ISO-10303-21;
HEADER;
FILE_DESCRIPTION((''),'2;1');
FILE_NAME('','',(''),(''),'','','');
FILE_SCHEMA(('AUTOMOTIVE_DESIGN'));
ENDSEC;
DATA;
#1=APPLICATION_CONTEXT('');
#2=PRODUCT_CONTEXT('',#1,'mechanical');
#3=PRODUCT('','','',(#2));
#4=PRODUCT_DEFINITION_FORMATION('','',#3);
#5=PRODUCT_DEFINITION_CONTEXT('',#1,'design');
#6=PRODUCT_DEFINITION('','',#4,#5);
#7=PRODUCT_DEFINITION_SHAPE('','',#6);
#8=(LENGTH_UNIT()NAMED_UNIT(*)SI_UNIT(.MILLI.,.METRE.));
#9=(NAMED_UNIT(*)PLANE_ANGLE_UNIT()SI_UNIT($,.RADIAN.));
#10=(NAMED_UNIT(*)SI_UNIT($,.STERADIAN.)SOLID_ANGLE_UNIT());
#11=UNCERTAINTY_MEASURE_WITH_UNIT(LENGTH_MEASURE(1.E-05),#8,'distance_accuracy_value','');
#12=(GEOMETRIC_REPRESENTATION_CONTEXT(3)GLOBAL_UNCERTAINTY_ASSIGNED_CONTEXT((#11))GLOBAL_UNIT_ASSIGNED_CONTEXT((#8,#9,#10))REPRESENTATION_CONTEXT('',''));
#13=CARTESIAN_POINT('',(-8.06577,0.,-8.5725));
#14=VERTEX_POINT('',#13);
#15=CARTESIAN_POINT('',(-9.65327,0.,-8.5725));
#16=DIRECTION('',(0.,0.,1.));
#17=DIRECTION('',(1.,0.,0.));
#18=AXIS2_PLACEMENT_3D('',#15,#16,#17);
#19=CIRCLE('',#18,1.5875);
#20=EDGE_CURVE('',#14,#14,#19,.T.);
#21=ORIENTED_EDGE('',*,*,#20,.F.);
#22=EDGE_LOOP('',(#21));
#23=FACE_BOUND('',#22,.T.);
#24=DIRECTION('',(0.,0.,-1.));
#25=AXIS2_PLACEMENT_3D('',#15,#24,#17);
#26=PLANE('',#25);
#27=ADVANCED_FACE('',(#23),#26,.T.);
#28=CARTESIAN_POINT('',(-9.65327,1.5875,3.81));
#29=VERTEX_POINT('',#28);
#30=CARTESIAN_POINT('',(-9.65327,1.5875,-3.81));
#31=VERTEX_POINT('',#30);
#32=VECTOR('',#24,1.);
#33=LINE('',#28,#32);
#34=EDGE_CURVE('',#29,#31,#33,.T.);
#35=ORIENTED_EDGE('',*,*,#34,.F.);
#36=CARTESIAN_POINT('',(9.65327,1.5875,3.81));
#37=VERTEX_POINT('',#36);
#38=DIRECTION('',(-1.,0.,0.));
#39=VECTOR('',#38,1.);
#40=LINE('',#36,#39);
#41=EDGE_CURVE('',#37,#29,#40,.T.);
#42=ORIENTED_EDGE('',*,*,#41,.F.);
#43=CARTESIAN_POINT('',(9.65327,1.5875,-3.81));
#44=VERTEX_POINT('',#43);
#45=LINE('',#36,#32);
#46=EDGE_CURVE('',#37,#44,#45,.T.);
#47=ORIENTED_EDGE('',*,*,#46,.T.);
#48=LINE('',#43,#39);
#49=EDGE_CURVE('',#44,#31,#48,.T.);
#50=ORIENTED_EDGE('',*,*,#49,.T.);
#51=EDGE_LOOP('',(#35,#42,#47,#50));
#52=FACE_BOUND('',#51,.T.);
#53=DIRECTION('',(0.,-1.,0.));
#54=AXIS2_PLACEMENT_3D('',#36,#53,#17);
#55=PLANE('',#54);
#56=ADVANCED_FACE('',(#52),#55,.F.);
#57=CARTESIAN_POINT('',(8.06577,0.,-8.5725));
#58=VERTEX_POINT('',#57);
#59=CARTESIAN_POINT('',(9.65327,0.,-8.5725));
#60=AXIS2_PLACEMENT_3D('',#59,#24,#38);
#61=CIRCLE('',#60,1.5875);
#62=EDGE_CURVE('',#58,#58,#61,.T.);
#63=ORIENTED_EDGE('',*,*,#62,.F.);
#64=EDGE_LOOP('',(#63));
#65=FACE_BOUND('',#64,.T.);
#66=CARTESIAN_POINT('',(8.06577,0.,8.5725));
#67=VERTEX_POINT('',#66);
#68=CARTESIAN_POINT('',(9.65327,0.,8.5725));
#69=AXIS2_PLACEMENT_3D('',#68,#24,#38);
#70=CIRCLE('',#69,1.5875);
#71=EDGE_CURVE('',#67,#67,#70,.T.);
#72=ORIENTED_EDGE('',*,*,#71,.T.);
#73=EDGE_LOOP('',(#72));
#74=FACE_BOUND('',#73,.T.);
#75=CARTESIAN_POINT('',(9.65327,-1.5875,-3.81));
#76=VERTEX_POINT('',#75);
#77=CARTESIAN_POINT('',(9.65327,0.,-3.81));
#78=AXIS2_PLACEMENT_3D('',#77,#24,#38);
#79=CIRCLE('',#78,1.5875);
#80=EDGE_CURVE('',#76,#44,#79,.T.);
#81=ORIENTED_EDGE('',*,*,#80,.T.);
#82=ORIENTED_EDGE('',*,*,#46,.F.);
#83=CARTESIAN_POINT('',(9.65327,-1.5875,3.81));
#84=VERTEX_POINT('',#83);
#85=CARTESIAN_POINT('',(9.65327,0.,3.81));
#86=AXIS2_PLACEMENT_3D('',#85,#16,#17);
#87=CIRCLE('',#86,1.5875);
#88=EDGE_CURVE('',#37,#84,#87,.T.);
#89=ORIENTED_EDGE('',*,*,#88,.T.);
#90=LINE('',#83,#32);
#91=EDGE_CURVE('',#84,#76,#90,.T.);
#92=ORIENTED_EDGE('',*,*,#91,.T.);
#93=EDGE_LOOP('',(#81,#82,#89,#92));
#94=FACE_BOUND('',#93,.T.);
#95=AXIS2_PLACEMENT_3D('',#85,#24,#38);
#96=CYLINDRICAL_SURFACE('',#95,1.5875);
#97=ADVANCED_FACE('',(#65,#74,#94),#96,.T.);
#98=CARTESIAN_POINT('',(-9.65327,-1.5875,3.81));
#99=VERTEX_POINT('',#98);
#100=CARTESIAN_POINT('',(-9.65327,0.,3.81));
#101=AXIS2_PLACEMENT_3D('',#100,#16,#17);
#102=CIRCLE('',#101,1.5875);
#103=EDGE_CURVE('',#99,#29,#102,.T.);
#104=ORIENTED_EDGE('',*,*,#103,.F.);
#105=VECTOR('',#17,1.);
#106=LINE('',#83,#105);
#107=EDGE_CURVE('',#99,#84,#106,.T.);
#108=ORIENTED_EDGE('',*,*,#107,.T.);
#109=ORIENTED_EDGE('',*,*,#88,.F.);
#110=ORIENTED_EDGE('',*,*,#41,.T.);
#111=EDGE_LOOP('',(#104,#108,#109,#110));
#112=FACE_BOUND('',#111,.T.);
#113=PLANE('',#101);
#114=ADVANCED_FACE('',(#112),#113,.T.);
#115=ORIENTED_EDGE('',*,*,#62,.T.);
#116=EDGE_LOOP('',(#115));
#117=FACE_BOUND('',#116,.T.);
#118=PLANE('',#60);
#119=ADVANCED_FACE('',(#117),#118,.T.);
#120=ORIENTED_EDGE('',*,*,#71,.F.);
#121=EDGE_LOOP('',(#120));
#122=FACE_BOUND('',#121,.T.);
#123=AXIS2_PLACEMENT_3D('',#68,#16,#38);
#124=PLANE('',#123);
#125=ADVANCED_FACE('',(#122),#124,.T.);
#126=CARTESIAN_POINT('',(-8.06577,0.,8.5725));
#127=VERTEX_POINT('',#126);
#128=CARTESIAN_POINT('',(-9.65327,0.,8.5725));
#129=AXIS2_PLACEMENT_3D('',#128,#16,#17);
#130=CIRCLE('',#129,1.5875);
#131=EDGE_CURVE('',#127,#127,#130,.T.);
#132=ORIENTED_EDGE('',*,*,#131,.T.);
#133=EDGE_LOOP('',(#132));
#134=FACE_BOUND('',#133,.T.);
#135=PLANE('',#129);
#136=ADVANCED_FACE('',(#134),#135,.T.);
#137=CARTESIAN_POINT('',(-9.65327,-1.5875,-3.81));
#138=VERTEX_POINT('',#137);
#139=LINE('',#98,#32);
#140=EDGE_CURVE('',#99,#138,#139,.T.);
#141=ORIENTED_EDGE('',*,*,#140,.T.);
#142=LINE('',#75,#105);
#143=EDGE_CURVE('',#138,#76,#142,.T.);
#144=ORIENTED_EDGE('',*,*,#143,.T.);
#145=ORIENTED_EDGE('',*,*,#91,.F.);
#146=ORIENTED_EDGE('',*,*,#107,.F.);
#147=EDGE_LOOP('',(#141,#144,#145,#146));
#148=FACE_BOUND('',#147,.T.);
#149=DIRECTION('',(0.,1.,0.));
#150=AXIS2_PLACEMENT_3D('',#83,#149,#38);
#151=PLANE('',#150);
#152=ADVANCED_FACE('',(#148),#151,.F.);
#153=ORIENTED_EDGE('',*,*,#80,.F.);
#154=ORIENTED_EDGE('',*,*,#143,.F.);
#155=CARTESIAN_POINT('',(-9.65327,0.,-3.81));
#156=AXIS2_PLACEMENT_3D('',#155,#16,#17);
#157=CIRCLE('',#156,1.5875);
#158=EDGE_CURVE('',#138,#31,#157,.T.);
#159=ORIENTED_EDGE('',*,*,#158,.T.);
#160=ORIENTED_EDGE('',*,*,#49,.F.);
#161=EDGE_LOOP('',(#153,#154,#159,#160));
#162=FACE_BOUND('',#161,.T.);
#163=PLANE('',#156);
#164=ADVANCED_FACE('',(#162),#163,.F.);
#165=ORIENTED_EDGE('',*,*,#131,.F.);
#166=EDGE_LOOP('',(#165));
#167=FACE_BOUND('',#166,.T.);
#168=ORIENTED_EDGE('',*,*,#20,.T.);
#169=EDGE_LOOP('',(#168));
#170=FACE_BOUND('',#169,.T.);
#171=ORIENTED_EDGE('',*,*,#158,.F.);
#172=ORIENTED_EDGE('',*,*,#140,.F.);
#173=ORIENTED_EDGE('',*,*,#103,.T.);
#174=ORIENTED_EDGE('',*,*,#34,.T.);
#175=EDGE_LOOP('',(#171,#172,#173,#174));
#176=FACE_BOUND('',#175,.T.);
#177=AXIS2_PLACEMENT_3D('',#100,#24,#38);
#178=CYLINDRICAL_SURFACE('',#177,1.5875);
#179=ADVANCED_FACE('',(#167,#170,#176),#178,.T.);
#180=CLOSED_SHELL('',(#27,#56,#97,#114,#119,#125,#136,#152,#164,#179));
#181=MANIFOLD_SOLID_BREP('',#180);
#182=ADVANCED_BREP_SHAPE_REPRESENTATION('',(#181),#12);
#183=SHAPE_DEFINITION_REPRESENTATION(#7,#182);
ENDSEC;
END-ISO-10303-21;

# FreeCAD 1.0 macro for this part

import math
import FreeCAD as App
import Part
import Sketcher
Q = App.Units.Quantity

doc = App.newDocument("Part")
body = doc.addObject("PartDesign::Body", "Body")

sketch1 = body.newObject("Sketcher::SketchObject", "Sketch")
sketch1.AttachmentSupport = (doc.getObject("XY_Plane"), [""])
sketch1.MapMode = "FlatFace"
sketch1.addGeometry([
    Part.LineSegment(App.Vector(9.65327, 1.5875, 0), App.Vector(-9.65327, 1.5875, 0)),
    Part.ArcOfCircle(Part.Circle(App.Vector(-9.65327, 0, 0), App.Vector(0, 0, 1), 1.5875), math.radians(90), math.radians(270)),
    Part.LineSegment(App.Vector(-9.65327, -1.5875, 0), App.Vector(9.65327, -1.5875, 0)),
    Part.ArcOfCircle(Part.Circle(App.Vector(9.65327, 0, 0), App.Vector(0, 0, 1), 1.5875), math.radians(-90), math.radians(90)),
], False)
sketch1.addConstraint([
    Sketcher.Constraint("Tangent", 0, 2, 1, 1),
    Sketcher.Constraint("Tangent", 1, 2, 2, 1),
    Sketcher.Constraint("Tangent", 2, 2, 3, 1),
    Sketcher.Constraint("Tangent", 3, 2, 0, 1),
    Sketcher.Constraint("Horizontal", 0),
    Sketcher.Constraint("Horizontal", 2),
    Sketcher.Constraint("Symmetric", 1, 3, 3, 3, -1, 1),
    Sketcher.Constraint("Radius", 1, Q("0.0625 in")),
    Sketcher.Constraint("DistanceX", 0, 2, 0, 1, Q("0.7601 in")),
])
pad1 = body.newObject("PartDesign::Pad", "Pad")
pad1.Profile = sketch1
pad1.Length = Q("0.3 in")
pad1.Midplane = True

sketch2 = body.newObject("Sketcher::SketchObject", "Sketch001")
sketch2.AttachmentSupport = (doc.getObject("XY_Plane"), [""])
sketch2.MapMode = "FlatFace"
sketch2.AttachmentOffset = App.Placement(App.Vector(0, 0, 0.15 * 25.4), App.Rotation())
sketch2.addGeometry(Part.Circle(App.Vector(-9.65327, 0, 0), App.Vector(0, 0, 1), 1.5875), False)
sketch2.addConstraint([
    Sketcher.Constraint("PointOnObject", 0, 3, -1),
    Sketcher.Constraint("Diameter", 0, Q("0.125 in")),
    Sketcher.Constraint("DistanceX", 0, 3, -1, 1, 9.65327),
])
pad2 = body.newObject("PartDesign::Pad", "Pad001")
pad2.Profile = sketch2
pad2.Length = Q("0.1875 in")
doc.recompute()

mirrored = body.newObject("PartDesign::Mirrored", "Mirrored")
mirrored.Originals = [pad2]
mirrored.MirrorPlane = (doc.getObject("YZ_Plane"), [""])
body.Tip = mirrored
doc.recompute()

mirrored2 = body.newObject("PartDesign::Mirrored", "Mirrored001")
mirrored2.Originals = [pad2]
mirrored2.MirrorPlane = (doc.getObject("XY_Plane"), [""])
body.Tip = mirrored2

sketch3 = body.newObject("Sketcher::SketchObject", "Sketch002")
sketch3.AttachmentSupport = (doc.getObject("XY_Plane"), [""])
sketch3.MapMode = "FlatFace"
sketch3.AttachmentOffset = App.Placement(App.Vector(0, 0, -0.15 * 25.4), App.Rotation())
sketch3.addGeometry(Part.Circle(App.Vector(9.65327, 0, 0), App.Vector(0, 0, 1), 1.5875), False)
sketch3.addConstraint([
    Sketcher.Constraint("PointOnObject", 0, 3, -1),
    Sketcher.Constraint("Diameter", 0, Q("0.125 in")),
    Sketcher.Constraint("DistanceX", -1, 1, 0, 3, 9.65327),
])
pad3 = body.newObject("PartDesign::Pad", "Pad002")
pad3.Profile = sketch3
pad3.Length = Q("0.1875 in")
pad3.Reversed = True

doc.recompute()
